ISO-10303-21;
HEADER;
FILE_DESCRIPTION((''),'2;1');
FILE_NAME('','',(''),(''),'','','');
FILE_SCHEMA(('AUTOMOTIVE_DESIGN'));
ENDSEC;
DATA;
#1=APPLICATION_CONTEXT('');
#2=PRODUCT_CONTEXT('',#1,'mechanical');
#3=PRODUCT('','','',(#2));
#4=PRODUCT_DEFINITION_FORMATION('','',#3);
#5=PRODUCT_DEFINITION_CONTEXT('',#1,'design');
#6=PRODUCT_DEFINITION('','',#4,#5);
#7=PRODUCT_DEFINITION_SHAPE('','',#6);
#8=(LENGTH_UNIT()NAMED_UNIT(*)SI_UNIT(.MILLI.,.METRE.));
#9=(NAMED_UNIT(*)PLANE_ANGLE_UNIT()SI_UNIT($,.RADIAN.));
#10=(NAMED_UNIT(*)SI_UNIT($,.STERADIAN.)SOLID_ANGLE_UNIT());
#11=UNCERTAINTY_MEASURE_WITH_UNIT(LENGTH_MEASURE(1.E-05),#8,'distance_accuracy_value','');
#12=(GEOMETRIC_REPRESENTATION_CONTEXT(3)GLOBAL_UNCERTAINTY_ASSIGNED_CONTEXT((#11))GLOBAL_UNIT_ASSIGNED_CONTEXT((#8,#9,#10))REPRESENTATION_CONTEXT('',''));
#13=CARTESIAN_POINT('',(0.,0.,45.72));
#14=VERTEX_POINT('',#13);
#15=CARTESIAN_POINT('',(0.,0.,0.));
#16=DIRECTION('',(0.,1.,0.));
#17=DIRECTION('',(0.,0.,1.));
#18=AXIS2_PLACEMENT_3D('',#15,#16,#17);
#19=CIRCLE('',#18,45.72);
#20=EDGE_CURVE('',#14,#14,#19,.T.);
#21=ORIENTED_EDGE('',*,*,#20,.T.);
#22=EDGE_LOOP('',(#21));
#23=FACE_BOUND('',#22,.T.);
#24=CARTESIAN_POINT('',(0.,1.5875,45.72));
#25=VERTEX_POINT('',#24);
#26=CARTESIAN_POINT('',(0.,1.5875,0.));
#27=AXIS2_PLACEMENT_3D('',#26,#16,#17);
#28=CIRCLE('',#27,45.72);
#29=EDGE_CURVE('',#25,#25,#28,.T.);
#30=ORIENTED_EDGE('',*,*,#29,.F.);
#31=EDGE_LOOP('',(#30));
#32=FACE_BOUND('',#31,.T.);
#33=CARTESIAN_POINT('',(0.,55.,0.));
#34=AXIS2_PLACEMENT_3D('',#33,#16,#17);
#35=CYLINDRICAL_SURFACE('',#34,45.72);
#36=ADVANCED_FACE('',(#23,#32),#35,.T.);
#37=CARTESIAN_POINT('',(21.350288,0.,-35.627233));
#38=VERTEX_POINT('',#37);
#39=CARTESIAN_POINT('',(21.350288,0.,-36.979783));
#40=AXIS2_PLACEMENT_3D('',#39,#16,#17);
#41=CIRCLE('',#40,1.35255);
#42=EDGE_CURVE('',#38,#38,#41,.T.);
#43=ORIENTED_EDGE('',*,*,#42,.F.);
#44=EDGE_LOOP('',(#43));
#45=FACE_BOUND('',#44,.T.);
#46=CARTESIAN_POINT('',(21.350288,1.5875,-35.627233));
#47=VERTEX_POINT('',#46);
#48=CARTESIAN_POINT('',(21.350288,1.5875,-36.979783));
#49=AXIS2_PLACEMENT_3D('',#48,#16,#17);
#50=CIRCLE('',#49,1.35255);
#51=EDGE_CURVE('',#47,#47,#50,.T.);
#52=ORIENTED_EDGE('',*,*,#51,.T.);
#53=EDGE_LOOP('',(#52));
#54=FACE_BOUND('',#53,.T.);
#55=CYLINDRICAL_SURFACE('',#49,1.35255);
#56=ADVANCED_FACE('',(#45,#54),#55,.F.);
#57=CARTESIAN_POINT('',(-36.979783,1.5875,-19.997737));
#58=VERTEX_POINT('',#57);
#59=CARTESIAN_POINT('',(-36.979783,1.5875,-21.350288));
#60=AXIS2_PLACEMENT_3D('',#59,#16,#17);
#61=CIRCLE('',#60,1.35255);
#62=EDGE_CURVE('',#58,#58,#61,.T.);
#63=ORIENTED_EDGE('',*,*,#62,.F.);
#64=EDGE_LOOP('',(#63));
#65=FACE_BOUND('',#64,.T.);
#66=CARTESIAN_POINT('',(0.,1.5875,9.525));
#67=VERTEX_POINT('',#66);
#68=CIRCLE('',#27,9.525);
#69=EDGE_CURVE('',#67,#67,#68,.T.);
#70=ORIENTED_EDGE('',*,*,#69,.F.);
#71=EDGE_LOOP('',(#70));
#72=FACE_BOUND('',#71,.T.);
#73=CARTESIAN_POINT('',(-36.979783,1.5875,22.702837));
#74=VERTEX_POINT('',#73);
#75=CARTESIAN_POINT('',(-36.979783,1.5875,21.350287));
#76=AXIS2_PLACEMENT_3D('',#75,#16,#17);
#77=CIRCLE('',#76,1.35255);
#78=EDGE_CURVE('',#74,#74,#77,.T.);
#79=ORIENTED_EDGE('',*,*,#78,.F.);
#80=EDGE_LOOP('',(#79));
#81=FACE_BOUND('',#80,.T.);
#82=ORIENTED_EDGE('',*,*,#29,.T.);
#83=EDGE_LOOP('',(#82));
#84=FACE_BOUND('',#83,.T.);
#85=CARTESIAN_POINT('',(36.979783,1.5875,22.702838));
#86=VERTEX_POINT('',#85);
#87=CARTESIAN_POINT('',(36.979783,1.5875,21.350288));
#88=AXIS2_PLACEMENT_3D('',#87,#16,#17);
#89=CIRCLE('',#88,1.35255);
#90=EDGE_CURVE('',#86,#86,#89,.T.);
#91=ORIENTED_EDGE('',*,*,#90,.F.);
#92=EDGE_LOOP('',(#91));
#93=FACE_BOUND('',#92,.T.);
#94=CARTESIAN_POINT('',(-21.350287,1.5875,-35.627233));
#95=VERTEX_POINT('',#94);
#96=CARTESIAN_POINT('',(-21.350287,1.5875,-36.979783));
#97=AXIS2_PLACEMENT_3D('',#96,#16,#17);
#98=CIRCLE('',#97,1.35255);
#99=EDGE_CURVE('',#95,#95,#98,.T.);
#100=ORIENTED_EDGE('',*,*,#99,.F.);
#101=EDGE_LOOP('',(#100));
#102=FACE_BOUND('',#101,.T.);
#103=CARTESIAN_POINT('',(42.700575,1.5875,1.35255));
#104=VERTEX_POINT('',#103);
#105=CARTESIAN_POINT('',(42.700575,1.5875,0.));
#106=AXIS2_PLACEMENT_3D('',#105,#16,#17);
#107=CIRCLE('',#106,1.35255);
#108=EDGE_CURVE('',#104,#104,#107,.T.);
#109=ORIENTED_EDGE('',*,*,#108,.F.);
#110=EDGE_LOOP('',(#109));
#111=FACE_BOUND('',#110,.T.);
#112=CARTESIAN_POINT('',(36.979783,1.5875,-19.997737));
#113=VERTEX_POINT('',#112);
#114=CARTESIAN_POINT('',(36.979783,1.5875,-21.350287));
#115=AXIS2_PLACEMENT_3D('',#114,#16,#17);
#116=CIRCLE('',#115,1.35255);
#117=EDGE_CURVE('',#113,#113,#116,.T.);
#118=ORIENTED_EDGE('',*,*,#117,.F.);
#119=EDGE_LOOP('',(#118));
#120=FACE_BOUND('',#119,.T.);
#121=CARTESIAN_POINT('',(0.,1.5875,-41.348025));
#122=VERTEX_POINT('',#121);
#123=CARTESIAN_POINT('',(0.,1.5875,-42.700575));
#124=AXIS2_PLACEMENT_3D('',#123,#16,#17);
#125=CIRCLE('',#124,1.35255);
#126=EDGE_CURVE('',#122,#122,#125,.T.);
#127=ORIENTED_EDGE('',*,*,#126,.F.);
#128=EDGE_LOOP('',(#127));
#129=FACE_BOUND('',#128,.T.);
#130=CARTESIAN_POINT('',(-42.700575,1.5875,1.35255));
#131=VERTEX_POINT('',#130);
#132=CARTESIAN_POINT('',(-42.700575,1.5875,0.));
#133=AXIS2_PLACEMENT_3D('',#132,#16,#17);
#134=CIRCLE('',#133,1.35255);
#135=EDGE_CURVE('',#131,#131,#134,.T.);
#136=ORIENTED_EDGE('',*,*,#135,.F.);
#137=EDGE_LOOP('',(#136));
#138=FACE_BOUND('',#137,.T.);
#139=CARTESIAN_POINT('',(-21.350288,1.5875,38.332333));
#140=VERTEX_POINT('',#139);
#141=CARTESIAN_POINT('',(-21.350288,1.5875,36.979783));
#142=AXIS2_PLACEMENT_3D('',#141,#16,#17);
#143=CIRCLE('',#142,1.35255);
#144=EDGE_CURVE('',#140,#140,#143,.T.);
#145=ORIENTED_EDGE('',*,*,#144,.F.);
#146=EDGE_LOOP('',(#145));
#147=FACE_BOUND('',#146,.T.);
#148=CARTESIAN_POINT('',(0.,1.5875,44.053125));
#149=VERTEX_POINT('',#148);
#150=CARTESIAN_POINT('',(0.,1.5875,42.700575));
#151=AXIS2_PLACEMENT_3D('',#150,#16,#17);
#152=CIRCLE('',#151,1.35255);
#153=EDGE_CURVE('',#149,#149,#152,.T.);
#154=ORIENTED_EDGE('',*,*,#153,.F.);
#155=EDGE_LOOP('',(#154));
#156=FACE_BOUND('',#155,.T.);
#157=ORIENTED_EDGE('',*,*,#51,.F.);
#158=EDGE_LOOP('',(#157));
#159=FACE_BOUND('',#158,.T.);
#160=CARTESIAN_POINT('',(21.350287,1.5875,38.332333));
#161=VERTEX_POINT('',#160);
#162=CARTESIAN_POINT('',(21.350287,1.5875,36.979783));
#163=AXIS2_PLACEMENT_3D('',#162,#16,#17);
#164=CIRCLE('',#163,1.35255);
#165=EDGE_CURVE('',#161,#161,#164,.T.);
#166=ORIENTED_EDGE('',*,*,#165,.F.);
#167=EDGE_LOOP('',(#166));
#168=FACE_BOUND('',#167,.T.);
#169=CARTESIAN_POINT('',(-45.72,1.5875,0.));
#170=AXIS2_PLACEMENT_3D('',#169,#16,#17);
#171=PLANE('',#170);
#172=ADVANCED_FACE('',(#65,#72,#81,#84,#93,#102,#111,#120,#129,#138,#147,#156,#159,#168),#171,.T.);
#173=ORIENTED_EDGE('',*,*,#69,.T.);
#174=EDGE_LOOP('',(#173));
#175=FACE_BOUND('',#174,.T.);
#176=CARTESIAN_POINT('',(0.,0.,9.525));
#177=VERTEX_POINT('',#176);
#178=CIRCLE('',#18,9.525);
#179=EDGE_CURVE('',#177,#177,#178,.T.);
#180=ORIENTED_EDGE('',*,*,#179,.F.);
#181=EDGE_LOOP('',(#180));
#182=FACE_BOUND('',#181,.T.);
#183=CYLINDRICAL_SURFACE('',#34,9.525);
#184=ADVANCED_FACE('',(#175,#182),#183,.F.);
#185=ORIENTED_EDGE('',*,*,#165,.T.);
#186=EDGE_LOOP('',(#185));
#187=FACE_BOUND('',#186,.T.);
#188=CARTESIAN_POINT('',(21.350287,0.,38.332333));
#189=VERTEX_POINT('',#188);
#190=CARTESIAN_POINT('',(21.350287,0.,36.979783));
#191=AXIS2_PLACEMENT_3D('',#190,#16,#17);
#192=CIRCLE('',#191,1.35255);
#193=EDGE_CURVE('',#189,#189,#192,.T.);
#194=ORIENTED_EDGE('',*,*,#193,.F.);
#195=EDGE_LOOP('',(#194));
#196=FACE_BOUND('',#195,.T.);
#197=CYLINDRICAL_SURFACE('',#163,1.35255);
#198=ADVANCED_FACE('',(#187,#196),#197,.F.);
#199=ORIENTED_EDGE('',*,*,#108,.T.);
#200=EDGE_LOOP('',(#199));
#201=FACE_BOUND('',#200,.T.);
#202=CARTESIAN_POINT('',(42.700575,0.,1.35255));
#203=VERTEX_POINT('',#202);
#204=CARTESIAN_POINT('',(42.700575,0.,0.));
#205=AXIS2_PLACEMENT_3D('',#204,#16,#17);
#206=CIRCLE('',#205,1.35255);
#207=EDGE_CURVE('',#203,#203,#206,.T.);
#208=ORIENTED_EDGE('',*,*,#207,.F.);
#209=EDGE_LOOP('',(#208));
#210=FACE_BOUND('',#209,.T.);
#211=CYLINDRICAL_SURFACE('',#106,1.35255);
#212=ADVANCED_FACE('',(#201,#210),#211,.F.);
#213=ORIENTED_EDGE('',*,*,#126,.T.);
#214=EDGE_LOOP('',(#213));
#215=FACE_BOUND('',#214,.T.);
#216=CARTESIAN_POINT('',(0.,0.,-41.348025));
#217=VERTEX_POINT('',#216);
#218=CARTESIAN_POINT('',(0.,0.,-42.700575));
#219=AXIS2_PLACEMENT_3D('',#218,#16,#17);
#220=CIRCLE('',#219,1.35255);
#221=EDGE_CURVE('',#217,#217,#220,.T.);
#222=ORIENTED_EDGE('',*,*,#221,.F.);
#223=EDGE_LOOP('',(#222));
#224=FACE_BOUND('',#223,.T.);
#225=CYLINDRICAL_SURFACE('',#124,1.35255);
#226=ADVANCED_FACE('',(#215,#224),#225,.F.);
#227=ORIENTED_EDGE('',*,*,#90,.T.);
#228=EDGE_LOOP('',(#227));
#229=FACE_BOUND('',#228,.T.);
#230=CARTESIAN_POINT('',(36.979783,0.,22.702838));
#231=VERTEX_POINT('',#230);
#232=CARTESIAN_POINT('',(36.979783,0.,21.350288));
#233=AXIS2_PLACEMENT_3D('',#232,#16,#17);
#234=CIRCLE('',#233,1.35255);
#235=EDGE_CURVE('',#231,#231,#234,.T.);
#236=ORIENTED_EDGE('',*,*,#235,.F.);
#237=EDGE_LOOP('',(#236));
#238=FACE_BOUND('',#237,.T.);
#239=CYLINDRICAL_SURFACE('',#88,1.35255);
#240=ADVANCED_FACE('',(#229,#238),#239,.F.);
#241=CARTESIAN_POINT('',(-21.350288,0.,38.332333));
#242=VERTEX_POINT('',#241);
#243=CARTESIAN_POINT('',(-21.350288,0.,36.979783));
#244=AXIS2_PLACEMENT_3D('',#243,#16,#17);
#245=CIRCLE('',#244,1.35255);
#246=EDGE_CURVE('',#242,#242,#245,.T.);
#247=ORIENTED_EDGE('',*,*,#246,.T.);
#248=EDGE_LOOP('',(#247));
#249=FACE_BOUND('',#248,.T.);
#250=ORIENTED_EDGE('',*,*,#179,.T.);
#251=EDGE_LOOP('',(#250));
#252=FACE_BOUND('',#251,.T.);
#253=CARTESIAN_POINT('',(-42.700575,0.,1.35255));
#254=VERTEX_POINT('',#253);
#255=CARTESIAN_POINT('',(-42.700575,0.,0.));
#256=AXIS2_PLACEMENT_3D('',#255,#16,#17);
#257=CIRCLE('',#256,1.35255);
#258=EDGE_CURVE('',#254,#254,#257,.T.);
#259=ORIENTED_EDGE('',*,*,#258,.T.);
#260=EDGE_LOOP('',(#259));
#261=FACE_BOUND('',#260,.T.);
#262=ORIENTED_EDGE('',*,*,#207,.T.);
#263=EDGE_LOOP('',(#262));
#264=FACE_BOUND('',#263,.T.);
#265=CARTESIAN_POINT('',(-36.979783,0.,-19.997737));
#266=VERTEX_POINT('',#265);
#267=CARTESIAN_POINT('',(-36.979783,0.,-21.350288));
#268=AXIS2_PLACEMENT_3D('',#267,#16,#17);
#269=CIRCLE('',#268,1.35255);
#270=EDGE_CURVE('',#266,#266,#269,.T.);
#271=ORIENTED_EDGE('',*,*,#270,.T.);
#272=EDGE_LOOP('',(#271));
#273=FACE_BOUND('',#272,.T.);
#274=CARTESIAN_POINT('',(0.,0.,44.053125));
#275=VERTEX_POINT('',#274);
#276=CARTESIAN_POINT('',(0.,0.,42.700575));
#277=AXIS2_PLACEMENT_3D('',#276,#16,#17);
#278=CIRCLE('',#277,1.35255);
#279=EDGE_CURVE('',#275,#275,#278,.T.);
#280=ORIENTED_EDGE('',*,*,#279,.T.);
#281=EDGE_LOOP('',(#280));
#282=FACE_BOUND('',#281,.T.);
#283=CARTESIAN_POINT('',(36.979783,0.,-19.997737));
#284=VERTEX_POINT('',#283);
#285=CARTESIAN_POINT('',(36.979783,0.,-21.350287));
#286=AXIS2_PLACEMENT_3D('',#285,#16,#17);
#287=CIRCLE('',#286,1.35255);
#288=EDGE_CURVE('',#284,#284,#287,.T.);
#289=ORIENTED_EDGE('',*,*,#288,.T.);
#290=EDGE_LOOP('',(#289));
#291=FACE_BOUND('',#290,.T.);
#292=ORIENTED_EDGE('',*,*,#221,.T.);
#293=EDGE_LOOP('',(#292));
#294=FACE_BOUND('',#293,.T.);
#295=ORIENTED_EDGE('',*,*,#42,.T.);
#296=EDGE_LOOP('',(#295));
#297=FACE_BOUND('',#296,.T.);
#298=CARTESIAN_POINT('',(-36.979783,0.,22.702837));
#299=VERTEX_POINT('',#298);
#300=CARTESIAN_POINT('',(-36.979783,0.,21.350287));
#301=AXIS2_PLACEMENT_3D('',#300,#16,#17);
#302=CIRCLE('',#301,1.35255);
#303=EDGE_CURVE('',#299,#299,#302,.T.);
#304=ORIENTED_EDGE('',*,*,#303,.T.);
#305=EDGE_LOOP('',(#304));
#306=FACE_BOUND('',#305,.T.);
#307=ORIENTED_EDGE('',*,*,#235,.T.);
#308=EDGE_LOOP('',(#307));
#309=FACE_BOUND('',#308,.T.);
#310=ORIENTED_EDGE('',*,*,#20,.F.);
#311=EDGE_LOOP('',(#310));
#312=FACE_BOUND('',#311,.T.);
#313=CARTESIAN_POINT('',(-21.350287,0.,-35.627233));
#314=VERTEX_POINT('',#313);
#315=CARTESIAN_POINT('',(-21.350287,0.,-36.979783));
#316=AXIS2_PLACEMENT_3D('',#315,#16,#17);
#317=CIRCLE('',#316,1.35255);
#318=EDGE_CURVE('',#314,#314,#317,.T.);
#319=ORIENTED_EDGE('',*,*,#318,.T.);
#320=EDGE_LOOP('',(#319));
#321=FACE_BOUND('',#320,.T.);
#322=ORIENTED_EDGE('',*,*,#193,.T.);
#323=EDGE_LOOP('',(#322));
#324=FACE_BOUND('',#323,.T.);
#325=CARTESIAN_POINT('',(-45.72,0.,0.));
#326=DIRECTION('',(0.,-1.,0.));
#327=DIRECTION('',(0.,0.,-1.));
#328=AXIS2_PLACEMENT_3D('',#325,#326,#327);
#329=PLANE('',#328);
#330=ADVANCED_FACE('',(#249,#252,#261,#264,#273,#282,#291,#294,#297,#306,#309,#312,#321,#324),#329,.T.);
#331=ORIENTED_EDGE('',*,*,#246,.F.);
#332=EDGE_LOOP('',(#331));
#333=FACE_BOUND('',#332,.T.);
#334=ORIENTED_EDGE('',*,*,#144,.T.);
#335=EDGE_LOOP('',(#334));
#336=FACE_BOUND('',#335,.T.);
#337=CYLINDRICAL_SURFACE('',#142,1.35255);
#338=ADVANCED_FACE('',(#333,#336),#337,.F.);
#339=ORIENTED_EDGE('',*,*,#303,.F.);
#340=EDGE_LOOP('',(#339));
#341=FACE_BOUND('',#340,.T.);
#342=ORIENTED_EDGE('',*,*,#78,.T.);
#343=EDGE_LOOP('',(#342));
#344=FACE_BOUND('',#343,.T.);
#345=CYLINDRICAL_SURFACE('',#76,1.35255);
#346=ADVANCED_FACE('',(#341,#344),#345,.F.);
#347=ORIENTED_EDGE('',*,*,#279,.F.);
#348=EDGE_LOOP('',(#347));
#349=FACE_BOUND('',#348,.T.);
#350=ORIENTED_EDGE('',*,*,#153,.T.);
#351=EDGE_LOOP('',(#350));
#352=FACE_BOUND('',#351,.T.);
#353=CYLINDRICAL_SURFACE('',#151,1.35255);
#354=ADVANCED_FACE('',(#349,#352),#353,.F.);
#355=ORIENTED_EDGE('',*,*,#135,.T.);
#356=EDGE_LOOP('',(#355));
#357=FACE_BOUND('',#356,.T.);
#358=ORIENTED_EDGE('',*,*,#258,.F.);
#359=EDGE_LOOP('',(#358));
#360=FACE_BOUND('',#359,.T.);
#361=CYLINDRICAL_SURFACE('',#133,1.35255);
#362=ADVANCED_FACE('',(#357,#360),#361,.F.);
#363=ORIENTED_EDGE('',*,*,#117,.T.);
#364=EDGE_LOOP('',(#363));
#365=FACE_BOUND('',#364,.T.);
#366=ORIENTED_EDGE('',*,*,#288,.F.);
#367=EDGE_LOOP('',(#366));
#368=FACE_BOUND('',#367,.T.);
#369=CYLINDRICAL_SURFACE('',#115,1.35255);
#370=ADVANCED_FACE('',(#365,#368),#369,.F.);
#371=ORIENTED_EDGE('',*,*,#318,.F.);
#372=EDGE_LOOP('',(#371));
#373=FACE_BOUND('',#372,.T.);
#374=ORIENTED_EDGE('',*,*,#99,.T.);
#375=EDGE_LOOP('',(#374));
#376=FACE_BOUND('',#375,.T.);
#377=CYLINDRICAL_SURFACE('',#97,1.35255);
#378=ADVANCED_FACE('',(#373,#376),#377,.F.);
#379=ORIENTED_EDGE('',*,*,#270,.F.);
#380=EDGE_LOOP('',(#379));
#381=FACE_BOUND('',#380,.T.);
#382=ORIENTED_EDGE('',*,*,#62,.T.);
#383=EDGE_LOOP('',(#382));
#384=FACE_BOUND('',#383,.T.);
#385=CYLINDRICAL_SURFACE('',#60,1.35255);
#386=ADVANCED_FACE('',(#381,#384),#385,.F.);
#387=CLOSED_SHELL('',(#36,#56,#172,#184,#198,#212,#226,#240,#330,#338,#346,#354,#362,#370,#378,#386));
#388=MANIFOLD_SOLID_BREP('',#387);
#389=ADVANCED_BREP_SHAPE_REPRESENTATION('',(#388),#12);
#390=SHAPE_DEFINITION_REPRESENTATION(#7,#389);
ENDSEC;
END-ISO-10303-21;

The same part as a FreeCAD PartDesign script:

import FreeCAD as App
import Part
import Sketcher

V = App.Vector
Q = App.Units.Quantity

doc = App.newDocument("Part")
body = doc.addObject("PartDesign::Body", "Body")

# Sketch on XY plane
sketch1 = body.newObject("Sketcher::SketchObject", "Sketch")
sketch1.AttachmentSupport = (doc.getObject("XY_Plane"), [""])
sketch1.MapMode = "FlatFace"
sketch1.addGeometry(Part.LineSegment(V(-45.72, 1.5875, 0), V(-45.72, 0, 0)), False)
sketch1.addGeometry(Part.LineSegment(V(-45.72, 0, 0), V(-9.525, 0, 0)), False)
sketch1.addGeometry(Part.LineSegment(V(-9.525, 0, 0), V(-9.525, 1.5875, 0)), False)
sketch1.addGeometry(Part.LineSegment(V(-9.525, 1.5875, 0), V(-45.72, 1.5875, 0)), False)
sketch1.addConstraint(Sketcher.Constraint("Coincident", 0, 2, 1, 1))
sketch1.addConstraint(Sketcher.Constraint("Coincident", 1, 2, 2, 1))
sketch1.addConstraint(Sketcher.Constraint("Coincident", 2, 2, 3, 1))
sketch1.addConstraint(Sketcher.Constraint("Coincident", 3, 2, 0, 1))
sketch1.addConstraint(Sketcher.Constraint("Vertical", 0))
sketch1.addConstraint(Sketcher.Constraint("Horizontal", 1))
sketch1.addConstraint(Sketcher.Constraint("Vertical", 2))
sketch1.addConstraint(Sketcher.Constraint("Horizontal", 3))
sketch1.addConstraint(Sketcher.Constraint("PointOnObject", 0, 2, -1))
sketch1.addConstraint(Sketcher.Constraint("DistanceX", 0, 2, -1, 1, Q("1.8 in")))
sketch1.addConstraint(Sketcher.Constraint("DistanceX", 1, 1, 1, 2, Q("1.425 in")))
sketch1.addConstraint(Sketcher.Constraint("DistanceY", 0, 2, 0, 1, Q("0.0625 in")))
revolution = body.newObject("PartDesign::Revolution", "Revolution")
revolution.Profile = sketch1
revolution.ReferenceAxis = (sketch1, ["V_Axis"])
revolution.Angle = 360

# Sketch on XZ plane
sketch2 = body.newObject("Sketcher::SketchObject", "Sketch001")
sketch2.AttachmentSupport = (doc.getObject("XZ_Plane"), [""])
sketch2.MapMode = "FlatFace"
sketch2.AttachmentOffset = App.Placement(V(0, 0, -0.0625 * 25.4), App.Rotation())
sketch2.addGeometry(Part.Circle(V(-42.700575, 0, 0), V(0, 0, 1), 1.35255), False)
sketch2.addConstraint(Sketcher.Constraint("PointOnObject", 0, 3, -1))
sketch2.addConstraint(Sketcher.Constraint("Diameter", 0, Q("0.1065 in")))
sketch2.addConstraint(Sketcher.Constraint("DistanceX", 0, 3, -1, 1, Q("42.700575 mm")))
doc.recompute()
hole = body.newObject("PartDesign::Hole", "Hole")
hole.Profile = sketch2
hole.ThreadType = "None"
hole.Diameter = Q("0.1065 in")
hole.DepthType = "ThroughAll"
hole.Reversed = True
doc.recompute()

polarpattern = body.newObject("PartDesign::PolarPattern", "PolarPattern")
polarpattern.Originals = [hole]
polarpattern.Axis = (doc.getObject("Y_Axis"), [""])
polarpattern.Angle = 360
polarpattern.Occurrences = 12
body.Tip = polarpattern

doc.recompute()
